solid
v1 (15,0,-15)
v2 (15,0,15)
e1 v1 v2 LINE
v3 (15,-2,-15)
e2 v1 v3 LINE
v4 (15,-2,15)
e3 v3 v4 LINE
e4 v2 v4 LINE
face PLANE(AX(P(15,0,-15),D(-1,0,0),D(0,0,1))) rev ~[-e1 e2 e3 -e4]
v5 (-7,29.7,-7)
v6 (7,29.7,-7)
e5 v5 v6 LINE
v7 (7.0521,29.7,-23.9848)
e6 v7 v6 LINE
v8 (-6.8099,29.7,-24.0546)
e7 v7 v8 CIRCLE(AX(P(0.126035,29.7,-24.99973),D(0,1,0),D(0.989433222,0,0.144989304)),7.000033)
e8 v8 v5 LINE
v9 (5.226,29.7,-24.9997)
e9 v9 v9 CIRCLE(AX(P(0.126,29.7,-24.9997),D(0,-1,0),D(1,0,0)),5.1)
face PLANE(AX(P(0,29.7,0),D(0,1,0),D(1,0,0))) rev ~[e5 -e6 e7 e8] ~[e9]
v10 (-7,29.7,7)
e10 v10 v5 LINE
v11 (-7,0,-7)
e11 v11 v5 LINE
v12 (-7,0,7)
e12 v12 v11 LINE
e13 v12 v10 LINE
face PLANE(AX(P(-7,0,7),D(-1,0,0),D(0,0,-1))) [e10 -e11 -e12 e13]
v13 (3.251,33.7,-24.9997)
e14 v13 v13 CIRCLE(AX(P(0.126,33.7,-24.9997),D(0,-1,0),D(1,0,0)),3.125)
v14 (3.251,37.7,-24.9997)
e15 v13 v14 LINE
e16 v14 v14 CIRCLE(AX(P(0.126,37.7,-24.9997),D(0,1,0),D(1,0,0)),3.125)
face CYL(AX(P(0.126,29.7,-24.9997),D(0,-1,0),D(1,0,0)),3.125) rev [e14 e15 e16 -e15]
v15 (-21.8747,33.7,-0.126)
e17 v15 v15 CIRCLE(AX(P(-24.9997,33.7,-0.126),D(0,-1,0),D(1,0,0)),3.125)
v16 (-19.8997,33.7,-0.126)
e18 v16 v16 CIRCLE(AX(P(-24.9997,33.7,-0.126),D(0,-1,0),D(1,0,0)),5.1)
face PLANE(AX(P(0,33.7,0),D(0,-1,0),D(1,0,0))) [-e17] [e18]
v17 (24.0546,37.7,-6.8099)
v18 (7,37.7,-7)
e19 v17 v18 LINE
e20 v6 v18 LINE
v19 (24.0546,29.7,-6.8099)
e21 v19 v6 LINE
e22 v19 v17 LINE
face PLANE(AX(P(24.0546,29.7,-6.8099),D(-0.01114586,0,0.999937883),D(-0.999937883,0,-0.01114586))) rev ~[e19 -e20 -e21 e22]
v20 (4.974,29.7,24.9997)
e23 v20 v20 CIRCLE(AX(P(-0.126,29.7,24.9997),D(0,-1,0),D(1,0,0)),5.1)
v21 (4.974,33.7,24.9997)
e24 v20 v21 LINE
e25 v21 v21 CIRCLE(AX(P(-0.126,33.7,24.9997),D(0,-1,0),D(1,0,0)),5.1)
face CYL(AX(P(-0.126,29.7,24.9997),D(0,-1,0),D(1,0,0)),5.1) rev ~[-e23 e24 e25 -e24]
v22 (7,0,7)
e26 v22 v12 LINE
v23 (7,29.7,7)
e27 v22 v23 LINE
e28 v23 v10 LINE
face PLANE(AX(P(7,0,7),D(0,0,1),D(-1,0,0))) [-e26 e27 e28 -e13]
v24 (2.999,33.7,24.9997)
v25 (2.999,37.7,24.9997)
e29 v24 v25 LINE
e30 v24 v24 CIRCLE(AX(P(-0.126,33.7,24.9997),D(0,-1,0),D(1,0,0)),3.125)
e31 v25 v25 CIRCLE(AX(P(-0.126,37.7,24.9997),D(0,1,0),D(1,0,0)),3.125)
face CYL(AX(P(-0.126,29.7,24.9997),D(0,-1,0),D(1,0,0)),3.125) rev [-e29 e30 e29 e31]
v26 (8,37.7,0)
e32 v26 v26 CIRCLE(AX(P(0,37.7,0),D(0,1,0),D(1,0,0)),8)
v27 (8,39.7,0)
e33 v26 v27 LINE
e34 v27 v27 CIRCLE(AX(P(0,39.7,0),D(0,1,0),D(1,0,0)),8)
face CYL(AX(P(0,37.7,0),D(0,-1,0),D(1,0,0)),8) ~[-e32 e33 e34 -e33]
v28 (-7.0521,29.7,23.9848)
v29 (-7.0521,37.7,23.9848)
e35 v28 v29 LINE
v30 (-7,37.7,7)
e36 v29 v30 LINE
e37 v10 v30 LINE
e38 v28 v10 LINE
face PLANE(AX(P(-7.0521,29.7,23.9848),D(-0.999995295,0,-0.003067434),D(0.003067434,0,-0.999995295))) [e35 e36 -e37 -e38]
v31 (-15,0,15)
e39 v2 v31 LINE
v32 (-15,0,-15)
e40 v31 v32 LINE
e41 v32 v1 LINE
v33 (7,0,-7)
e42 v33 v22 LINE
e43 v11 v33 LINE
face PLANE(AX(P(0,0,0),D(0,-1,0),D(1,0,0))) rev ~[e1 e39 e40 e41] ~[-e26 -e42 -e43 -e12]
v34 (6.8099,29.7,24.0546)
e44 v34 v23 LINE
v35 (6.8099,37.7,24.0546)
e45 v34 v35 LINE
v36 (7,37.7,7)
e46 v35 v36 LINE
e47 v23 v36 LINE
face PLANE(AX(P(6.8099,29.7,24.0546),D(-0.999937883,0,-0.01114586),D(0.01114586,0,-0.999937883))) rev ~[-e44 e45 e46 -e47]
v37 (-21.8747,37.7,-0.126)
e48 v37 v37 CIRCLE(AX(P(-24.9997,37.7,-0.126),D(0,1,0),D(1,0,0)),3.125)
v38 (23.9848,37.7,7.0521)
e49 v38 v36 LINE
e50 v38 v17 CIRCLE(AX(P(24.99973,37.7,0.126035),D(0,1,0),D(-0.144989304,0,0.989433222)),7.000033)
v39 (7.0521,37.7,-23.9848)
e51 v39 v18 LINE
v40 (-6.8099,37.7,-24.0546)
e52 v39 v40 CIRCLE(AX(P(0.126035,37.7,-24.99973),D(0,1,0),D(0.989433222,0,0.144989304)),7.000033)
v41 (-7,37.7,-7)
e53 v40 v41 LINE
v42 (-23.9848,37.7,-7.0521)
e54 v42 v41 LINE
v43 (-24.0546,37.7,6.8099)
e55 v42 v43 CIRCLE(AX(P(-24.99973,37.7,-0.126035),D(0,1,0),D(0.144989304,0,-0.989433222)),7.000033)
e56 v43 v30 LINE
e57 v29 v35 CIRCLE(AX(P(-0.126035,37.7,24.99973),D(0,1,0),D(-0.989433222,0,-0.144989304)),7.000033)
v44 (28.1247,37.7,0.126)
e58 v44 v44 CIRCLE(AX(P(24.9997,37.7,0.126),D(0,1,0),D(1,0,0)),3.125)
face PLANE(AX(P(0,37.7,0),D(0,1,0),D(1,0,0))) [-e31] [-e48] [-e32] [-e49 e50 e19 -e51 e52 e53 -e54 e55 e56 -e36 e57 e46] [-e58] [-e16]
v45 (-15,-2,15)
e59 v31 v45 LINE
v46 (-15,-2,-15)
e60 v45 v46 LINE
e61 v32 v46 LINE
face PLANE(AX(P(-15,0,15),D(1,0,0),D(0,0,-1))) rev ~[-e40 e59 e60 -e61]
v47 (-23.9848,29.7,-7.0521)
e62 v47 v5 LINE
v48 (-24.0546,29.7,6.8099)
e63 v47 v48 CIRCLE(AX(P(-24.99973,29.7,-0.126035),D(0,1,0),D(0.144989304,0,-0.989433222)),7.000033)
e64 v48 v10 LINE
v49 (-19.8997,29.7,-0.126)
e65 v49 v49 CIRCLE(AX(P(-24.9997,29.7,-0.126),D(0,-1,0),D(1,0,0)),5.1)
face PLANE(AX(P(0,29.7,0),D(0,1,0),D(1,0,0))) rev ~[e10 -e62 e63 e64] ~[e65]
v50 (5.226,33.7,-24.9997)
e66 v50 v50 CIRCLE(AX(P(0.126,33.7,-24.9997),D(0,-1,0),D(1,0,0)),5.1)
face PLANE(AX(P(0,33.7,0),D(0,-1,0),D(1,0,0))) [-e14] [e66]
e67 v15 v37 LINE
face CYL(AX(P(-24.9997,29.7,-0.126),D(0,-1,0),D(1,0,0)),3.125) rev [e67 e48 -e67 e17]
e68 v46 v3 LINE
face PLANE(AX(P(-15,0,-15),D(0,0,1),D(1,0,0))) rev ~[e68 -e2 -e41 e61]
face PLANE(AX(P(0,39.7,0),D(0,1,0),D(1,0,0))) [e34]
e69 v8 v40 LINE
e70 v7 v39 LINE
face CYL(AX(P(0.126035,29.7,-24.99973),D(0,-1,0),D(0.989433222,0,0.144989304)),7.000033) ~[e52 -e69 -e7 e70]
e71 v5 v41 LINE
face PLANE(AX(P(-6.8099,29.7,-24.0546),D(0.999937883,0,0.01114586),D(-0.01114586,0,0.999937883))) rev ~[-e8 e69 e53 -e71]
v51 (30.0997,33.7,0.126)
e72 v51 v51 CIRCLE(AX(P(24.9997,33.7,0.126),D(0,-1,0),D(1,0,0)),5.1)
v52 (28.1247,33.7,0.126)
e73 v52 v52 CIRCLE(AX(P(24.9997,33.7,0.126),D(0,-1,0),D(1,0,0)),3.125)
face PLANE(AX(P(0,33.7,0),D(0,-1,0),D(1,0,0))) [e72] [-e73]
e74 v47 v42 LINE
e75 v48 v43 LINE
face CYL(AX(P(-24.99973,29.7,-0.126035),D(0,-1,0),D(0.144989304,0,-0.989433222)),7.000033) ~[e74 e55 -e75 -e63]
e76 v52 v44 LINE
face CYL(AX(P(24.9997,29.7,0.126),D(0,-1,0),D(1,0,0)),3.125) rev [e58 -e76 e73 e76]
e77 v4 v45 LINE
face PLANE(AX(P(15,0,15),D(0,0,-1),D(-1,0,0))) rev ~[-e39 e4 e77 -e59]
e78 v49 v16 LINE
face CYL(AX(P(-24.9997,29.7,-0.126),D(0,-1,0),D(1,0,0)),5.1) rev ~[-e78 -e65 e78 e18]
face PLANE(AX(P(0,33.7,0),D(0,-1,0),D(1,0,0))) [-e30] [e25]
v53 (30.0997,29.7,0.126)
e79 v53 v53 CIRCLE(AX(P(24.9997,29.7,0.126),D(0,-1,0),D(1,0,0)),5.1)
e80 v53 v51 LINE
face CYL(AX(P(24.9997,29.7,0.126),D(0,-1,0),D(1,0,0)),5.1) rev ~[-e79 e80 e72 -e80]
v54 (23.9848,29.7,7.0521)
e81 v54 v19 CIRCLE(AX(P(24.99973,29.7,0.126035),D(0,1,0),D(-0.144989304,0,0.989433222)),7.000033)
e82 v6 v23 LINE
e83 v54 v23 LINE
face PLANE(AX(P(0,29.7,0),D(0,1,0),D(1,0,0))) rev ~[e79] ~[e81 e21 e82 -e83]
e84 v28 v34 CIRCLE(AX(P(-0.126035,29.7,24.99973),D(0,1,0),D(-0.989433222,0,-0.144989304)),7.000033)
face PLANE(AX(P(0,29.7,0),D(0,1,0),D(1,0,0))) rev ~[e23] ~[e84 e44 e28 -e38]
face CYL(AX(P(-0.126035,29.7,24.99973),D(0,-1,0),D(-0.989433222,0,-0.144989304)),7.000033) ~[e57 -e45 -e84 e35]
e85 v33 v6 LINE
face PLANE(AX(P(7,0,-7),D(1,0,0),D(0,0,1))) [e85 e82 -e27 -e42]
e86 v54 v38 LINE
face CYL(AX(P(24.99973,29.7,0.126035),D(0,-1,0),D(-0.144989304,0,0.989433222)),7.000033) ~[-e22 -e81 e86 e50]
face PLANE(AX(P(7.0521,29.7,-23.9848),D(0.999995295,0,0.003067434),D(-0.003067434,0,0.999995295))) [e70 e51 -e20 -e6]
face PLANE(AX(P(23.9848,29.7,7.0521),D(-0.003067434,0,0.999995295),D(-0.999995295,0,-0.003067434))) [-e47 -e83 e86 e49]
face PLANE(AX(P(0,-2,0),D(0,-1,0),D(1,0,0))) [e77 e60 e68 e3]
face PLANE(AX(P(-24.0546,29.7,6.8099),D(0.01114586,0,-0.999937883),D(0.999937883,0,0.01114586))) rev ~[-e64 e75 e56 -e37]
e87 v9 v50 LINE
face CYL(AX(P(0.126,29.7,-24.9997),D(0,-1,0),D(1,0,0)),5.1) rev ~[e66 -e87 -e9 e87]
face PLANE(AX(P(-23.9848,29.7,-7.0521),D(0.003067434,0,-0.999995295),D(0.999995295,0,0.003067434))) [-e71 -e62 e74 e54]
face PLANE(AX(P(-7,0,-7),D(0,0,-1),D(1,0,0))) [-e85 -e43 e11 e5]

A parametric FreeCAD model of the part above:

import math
import FreeCAD as App
import Part
import Sketcher

V = App.Vector
Q = App.Units.Quantity

doc = App.newDocument("Part")
body = doc.addObject("PartDesign::Body", "Body")

# Sketch on XZ plane
sketch1 = doc.addObject("Sketcher::SketchObject", "Sketch")
body.addObject(sketch1)
sketch1.AttachmentSupport = (doc.XZ_Plane, [""])
sketch1.MapMode = "FlatFace"
sketch1.addGeometry(Part.LineSegment(V(-7, 7, 0), V(7, 7, 0)), False)
sketch1.addGeometry(Part.LineSegment(V(7, 7, 0), V(7, -7, 0)), False)
sketch1.addGeometry(Part.LineSegment(V(7, -7, 0), V(-7, -7, 0)), False)
sketch1.addGeometry(Part.LineSegment(V(-7, -7, 0), V(-7, 7, 0)), False)
sketch1.addConstraint(Sketcher.Constraint("Coincident", 0, 2, 1, 1))
sketch1.addConstraint(Sketcher.Constraint("Coincident", 1, 2, 2, 1))
sketch1.addConstraint(Sketcher.Constraint("Coincident", 2, 2, 3, 1))
sketch1.addConstraint(Sketcher.Constraint("Coincident", 3, 2, 0, 1))
sketch1.addConstraint(Sketcher.Constraint("Horizontal", 0))
sketch1.addConstraint(Sketcher.Constraint("Vertical", 1))
sketch1.addConstraint(Sketcher.Constraint("Horizontal", 2))
sketch1.addConstraint(Sketcher.Constraint("Vertical", 3))
sketch1.addConstraint(Sketcher.Constraint("Symmetric", 0, 2, 2, 2, -1, 1))
sketch1.addConstraint(Sketcher.Constraint("Equal", 2, 1))
sketch1.addConstraint(Sketcher.Constraint("DistanceX", 0, 1, 0, 2, Q("14 mm")))
pad1 = doc.addObject("PartDesign::Pad", "Pad")
body.addObject(pad1)
pad1.Profile = sketch1
pad1.Length = 29.7
pad1.Reversed = True

# Sketch on XZ plane
sketch2 = doc.addObject("Sketcher::SketchObject", "Sketch001")
body.addObject(sketch2)
sketch2.AttachmentSupport = (doc.XZ_Plane, [""])
sketch2.MapMode = "FlatFace"
sketch2.AttachmentOffset = App.Placement(V(0, 0, -29.7), App.Rotation())
sketch2.addGeometry(Part.LineSegment(V(7, -7, 0), V(7.0521, -23.9848, 0)), False)
sketch2.addGeometry(Part.ArcOfCircle(Part.Circle(V(0.126, -24.9997, 0), V(0, 0, 1), 7.000063), math.radians(172.240548), math.radians(368.336376)), False)
sketch2.addGeometry(Part.LineSegment(V(-6.8099, -24.0546, 0), V(-7, -7, 0)), False)
sketch2.addGeometry(Part.LineSegment(V(-7, -7, 0), V(-23.9848, -7.0521, 0)), False)
sketch2.addGeometry(Part.ArcOfCircle(Part.Circle(V(-24.9997, -0.126, 0), V(0, 0, 1), 7.000063), math.radians(82.240548), math.radians(278.336376)), False)
sketch2.addGeometry(Part.LineSegment(V(-24.0546, 6.8099, 0), V(-7, 7, 0)), False)
sketch2.addGeometry(Part.LineSegment(V(-7, 7, 0), V(-7.0521, 23.9848, 0)), False)
sketch2.addGeometry(Part.ArcOfCircle(Part.Circle(V(-0.126, 24.9997, 0), V(0, 0, 1), 7.000063), math.radians(-7.759452), math.radians(188.336376)), False)
sketch2.addGeometry(Part.LineSegment(V(6.8099, 24.0546, 0), V(7, 7, 0)), False)
sketch2.addGeometry(Part.LineSegment(V(7, 7, 0), V(23.9848, 7.0521, 0)), False)
sketch2.addGeometry(Part.ArcOfCircle(Part.Circle(V(24.9997, 0.126, 0), V(0, 0, 1), 7.000063), math.radians(-97.759452), math.radians(98.336376)), False)
sketch2.addGeometry(Part.LineSegment(V(24.0546, -6.8099, 0), V(7, -7, 0)), False)
sketch2.addGeometry(Part.Circle(V(-0.126, 24.9997, 0), V(0, 0, 1), 3.125), False)
sketch2.addGeometry(Part.Circle(V(0.126, -24.9997, 0), V(0, 0, 1), 3.125), False)
sketch2.addGeometry(Part.Circle(V(24.9997, 0.126, 0), V(0, 0, 1), 3.125), False)
sketch2.addGeometry(Part.Circle(V(-24.9997, -0.126, 0), V(0, 0, 1), 3.125), False)
sketch2.addConstraint(Sketcher.Constraint("Coincident", 0, 2, 1, 2))
sketch2.addConstraint(Sketcher.Constraint("Coincident", 1, 1, 2, 1))
sketch2.addConstraint(Sketcher.Constraint("Coincident", 2, 2, 3, 1))
sketch2.addConstraint(Sketcher.Constraint("Coincident", 3, 2, 4, 2))
sketch2.addConstraint(Sketcher.Constraint("Coincident", 4, 1, 5, 1))
sketch2.addConstraint(Sketcher.Constraint("Coincident", 5, 2, 6, 1))
sketch2.addConstraint(Sketcher.Constraint("Coincident", 6, 2, 7, 2))
sketch2.addConstraint(Sketcher.Constraint("Coincident", 7, 1, 8, 1))
sketch2.addConstraint(Sketcher.Constraint("Coincident", 8, 2, 9, 1))
sketch2.addConstraint(Sketcher.Constraint("Coincident", 9, 2, 10, 2))
sketch2.addConstraint(Sketcher.Constraint("Coincident", 10, 1, 11, 1))
sketch2.addConstraint(Sketcher.Constraint("Coincident", 11, 2, 0, 1))
sketch2.addConstraint(Sketcher.Constraint("Coincident", 12, 3, 7, 3))
sketch2.addConstraint(Sketcher.Constraint("Coincident", 13, 3, 1, 3))
sketch2.addConstraint(Sketcher.Constraint("Coincident", 14, 3, 10, 3))
sketch2.addConstraint(Sketcher.Constraint("Coincident", 15, 3, 4, 3))
sketch2.addConstraint(Sketcher.Constraint("Equal", 1, 4))
sketch2.addConstraint(Sketcher.Constraint("Equal", 4, 7))
sketch2.addConstraint(Sketcher.Constraint("Equal", 7, 10))
sketch2.addConstraint(Sketcher.Constraint("Equal", 12, 13))
sketch2.addConstraint(Sketcher.Constraint("Equal", 13, 14))
sketch2.addConstraint(Sketcher.Constraint("Equal", 14, 15))
sketch2.addConstraint(Sketcher.Constraint("Symmetric", 1, 3, 7, 3, -1, 1))
sketch2.addConstraint(Sketcher.Constraint("Symmetric", 4, 3, 10, 3, -1, 1))
sketch2.addConstraint(Sketcher.Constraint("Symmetric", 2, 2, 8, 2, -1, 1))
sketch2.addConstraint(Sketcher.Constraint("Symmetric", 5, 2, 11, 2, -1, 1))
sketch2.addConstraint(Sketcher.Constraint("Symmetric", 5, 2, 8, 2, -2))
sketch2.addConstraint(Sketcher.Constraint("Perpendicular", 0, 3))
sketch2.addConstraint(Sketcher.Constraint("Perpendicular", 2, 5))
sketch2.addConstraint(Sketcher.Constraint("Perpendicular", 3, 6))
sketch2.addConstraint(Sketcher.Constraint("Perpendicular", 5, 8))
sketch2.addConstraint(Sketcher.Constraint("Perpendicular", 6, 9))
sketch2.addConstraint(Sketcher.Constraint("Perpendicular", 8, 11))
sketch2.addConstraint(Sketcher.Constraint("Equal", 0, 3))
sketch2.addConstraint(Sketcher.Constraint("Equal", 2, 5))
sketch2.addConstraint(Sketcher.Constraint("Radius", 1, Q("7 mm")))
sketch2.addConstraint(Sketcher.Constraint("Diameter", 12, Q("6.25 mm")))
sketch2.addConstraint(Sketcher.Constraint("DistanceX", 2, 2, -1, 1, Q("7 mm")))
sketch2.addConstraint(Sketcher.Constraint("DistanceY", 2, 2, -1, 1, Q("7 mm")))
sketch2.addConstraint(Sketcher.Constraint("DistanceY", 1, 3, 7, 3, Q("49.9994 mm")))
sketch2.addConstraint(Sketcher.Constraint("DistanceX", 1, 1, -1, 1, Q("6.81 mm")))
sketch2.addConstraint(Sketcher.Constraint("DistanceX", -1, 1, 1, 3, Q("0.126 mm")))
sketch2.addConstraint(Sketcher.Constraint("DistanceX", -1, 1, 0, 2, Q("7.052 mm")))
pad2 = doc.addObject("PartDesign::Pad", "Pad001")
body.addObject(pad2)
pad2.Profile = sketch2
pad2.Length = 8
pad2.Reversed = True

# Sketch on XZ plane
sketch3 = doc.addObject("Sketcher::SketchObject", "Sketch002")
body.addObject(sketch3)
sketch3.AttachmentSupport = (doc.XZ_Plane, [""])
sketch3.MapMode = "FlatFace"
sketch3.AttachmentOffset = App.Placement(V(0, 0, -29.7), App.Rotation())
sketch3.addGeometry(Part.Circle(V(24.9997, 0.126, 0), V(0, 0, 1), 5.1), False)
sketch3.addGeometry(Part.Circle(V(24.9997, 0.126, 0), V(0, 0, 1), 3.125), False)
sketch3.addGeometry(Part.Circle(V(-0.126, 24.9997, 0), V(0, 0, 1), 5.1), False)
sketch3.addGeometry(Part.Circle(V(-24.9997, -0.126, 0), V(0, 0, 1), 5.1), False)
sketch3.addGeometry(Part.Circle(V(0.126, -24.9997, 0), V(0, 0, 1), 5.1), False)
sketch3.addConstraint(Sketcher.Constraint("Coincident", 1, 3, 0, 3))
sketch3.addConstraint(Sketcher.Constraint("Equal", 0, 2))
sketch3.addConstraint(Sketcher.Constraint("Equal", 2, 3))
sketch3.addConstraint(Sketcher.Constraint("Equal", 3, 4))
sketch3.addConstraint(Sketcher.Constraint("Symmetric", 0, 3, 3, 3, -1, 1))
sketch3.addConstraint(Sketcher.Constraint("Symmetric", 2, 3, 4, 3, -1, 1))
sketch3.addConstraint(Sketcher.Constraint("Diameter", 0, Q("10.2 mm")))
sketch3.addConstraint(Sketcher.Constraint("Diameter", 1, Q("6.25 mm")))
sketch3.addConstraint(Sketcher.Constraint("DistanceY", -1, 1, 0, 3, Q("0.126 mm")))
sketch3.addConstraint(Sketcher.Constraint("DistanceX", 2, 3, -1, 1, Q("0.126 mm")))
sketch3.addConstraint(Sketcher.Constraint("DistanceX", -1, 1, 0, 3, Q("24.9997 mm")))
sketch3.addConstraint(Sketcher.Constraint("DistanceY", -1, 1, 2, 3, Q("24.9997 mm")))
pocket1 = doc.addObject("PartDesign::Pocket", "Pocket")
body.addObject(pocket1)
pocket1.Profile = sketch3
pocket1.Length = 4

# Sketch on XZ plane
sketch4 = doc.addObject("Sketcher::SketchObject", "Sketch003")
body.addObject(sketch4)
sketch4.AttachmentSupport = (doc.XZ_Plane, [""])
sketch4.MapMode = "FlatFace"
sketch4.addGeometry(Part.LineSegment(V(-15, 15, 0), V(-15, -15, 0)), False)
sketch4.addGeometry(Part.LineSegment(V(-15, -15, 0), V(15, -15, 0)), False)
sketch4.addGeometry(Part.LineSegment(V(15, -15, 0), V(15, 15, 0)), False)
sketch4.addGeometry(Part.LineSegment(V(15, 15, 0), V(-15, 15, 0)), False)
sketch4.addConstraint(Sketcher.Constraint("Coincident", 0, 2, 1, 1))
sketch4.addConstraint(Sketcher.Constraint("Coincident", 1, 2, 2, 1))
sketch4.addConstraint(Sketcher.Constraint("Coincident", 2, 2, 3, 1))
sketch4.addConstraint(Sketcher.Constraint("Coincident", 3, 2, 0, 1))
sketch4.addConstraint(Sketcher.Constraint("Vertical", 0))
sketch4.addConstraint(Sketcher.Constraint("Horizontal", 1))
sketch4.addConstraint(Sketcher.Constraint("Vertical", 2))
sketch4.addConstraint(Sketcher.Constraint("Horizontal", 3))
sketch4.addConstraint(Sketcher.Constraint("Symmetric", 0, 2, 2, 2, -1, 1))
sketch4.addConstraint(Sketcher.Constraint("Equal", 3, 0))
sketch4.addConstraint(Sketcher.Constraint("DistanceX", 1, 1, 1, 2, Q("30 mm")))
pad3 = doc.addObject("PartDesign::Pad", "Pad002")
body.addObject(pad3)
pad3.Profile = sketch4
pad3.Length = 2

# Sketch on XZ plane
sketch5 = doc.addObject("Sketcher::SketchObject", "Sketch004")
body.addObject(sketch5)
sketch5.AttachmentSupport = (doc.XZ_Plane, [""])
sketch5.MapMode = "FlatFace"
sketch5.AttachmentOffset = App.Placement(V(0, 0, -37.7), App.Rotation())
sketch5.addGeometry(Part.Circle(V(0, 0, 0), V(0, 0, 1), 8), False)
sketch5.addConstraint(Sketcher.Constraint("Coincident", 0, 3, -1, 1))
sketch5.addConstraint(Sketcher.Constraint("Diameter", 0, Q("16 mm")))
pad4 = doc.addObject("PartDesign::Pad", "Pad003")
body.addObject(pad4)
pad4.Profile = sketch5
pad4.Length = 2
pad4.Reversed = True

doc.recompute()
